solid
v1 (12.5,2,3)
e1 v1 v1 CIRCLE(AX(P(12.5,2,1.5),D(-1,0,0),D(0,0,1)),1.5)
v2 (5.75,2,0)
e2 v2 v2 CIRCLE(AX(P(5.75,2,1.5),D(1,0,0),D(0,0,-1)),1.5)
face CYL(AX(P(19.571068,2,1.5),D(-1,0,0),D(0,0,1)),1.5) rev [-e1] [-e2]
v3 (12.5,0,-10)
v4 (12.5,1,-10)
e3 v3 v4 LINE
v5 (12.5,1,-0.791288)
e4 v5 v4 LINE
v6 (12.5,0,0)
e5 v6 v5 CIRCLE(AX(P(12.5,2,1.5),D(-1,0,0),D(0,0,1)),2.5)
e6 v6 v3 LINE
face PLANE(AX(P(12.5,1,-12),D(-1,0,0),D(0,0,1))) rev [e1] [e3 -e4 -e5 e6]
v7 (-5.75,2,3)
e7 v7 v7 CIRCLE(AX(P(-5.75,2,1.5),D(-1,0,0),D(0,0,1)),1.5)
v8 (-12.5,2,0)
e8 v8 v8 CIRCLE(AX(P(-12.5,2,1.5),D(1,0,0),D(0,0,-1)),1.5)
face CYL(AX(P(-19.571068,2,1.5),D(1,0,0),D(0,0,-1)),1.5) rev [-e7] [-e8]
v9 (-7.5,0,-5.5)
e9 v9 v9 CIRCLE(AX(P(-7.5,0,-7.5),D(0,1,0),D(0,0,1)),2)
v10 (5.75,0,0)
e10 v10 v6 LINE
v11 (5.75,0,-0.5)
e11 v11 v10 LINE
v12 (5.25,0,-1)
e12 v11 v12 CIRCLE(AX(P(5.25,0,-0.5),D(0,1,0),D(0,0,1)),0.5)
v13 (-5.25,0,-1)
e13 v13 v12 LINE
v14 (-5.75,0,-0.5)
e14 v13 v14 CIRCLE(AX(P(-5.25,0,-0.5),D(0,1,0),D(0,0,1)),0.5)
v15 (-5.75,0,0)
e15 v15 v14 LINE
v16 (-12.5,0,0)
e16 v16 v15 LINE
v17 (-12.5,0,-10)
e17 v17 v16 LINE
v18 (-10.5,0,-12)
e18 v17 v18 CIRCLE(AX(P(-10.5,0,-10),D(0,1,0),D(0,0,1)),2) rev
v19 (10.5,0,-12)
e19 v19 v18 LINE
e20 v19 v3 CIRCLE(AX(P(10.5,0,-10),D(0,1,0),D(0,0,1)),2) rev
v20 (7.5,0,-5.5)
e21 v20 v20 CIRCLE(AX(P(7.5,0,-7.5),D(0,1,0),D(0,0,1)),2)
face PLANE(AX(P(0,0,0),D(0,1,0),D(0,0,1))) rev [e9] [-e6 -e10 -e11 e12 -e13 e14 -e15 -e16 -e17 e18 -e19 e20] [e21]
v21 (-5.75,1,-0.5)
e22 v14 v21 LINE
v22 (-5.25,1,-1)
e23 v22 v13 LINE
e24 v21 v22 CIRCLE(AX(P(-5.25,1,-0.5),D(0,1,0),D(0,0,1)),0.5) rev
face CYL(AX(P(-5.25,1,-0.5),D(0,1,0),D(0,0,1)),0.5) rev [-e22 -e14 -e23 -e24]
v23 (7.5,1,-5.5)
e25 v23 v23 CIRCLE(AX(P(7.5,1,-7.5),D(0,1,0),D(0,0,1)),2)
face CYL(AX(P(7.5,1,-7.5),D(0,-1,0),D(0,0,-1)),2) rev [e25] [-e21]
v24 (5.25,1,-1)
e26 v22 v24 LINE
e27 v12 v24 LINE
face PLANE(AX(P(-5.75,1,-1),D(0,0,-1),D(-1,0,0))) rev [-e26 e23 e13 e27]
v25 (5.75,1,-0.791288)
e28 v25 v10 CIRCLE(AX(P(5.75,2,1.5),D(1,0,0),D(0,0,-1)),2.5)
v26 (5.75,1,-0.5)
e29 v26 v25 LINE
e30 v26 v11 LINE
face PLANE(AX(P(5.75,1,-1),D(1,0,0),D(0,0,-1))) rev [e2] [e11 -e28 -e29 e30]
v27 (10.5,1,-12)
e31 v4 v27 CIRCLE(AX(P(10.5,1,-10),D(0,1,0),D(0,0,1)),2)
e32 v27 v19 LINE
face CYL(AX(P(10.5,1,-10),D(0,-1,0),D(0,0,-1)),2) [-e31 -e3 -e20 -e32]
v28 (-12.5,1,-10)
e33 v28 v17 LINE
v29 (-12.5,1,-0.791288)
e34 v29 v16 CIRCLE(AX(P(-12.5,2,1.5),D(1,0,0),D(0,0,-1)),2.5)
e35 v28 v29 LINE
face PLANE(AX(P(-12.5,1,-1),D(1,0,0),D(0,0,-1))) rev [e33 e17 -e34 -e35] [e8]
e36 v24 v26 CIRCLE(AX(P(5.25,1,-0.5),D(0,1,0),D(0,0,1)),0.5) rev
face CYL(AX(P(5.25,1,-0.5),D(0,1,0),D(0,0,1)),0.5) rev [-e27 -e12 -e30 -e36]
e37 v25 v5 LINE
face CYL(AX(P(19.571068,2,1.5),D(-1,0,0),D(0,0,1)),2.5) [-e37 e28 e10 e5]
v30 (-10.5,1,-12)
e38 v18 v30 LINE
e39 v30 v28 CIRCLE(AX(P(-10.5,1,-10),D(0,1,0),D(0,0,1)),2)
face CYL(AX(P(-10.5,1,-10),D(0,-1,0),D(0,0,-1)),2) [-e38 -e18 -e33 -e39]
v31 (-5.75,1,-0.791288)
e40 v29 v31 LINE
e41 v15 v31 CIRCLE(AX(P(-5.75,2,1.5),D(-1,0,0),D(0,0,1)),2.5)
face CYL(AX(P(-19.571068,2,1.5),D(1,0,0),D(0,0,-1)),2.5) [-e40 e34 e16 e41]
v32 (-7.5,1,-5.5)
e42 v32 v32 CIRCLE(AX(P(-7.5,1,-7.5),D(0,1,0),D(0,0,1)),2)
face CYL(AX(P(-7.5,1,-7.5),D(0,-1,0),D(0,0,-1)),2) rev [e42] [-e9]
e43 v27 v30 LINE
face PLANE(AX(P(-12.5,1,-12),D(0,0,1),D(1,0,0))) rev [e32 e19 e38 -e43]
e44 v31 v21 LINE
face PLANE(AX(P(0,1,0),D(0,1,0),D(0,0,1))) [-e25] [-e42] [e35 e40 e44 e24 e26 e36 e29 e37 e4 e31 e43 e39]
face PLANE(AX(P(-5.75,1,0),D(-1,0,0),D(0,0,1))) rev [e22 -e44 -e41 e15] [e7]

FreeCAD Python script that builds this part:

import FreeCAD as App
import Part
import Sketcher


def edges_at(feature, points):
    """Names of the edges that pass closest to the given points."""
    edges = feature.Shape.Edges
    near = lambda p: min(range(len(edges)), key=lambda i: edges[i].distToShape(Part.Vertex(*p))[0])
    return sorted({f"Edge{near(p) + 1}" for p in points})

doc = App.newDocument("Part")
params = doc.addObject("Spreadsheet::Sheet", "Params")
for row, (alias, value) in enumerate([
    ("sketch1_diameter", "4 mm"),
    ("sketch1_width", "25 mm"),
    ("sketch1_height", "1 mm"),
    ("sketch1_height2", "12 mm"),
    ("sketch1_width2", "11.5 mm"),
    ("pad1_length", "1 mm"),
    ("fillet_radius", "2 mm"),
    ("fillet2_radius", "0.5 mm"),
    ("sketch2_diameter", "5 mm"),
    ("sketch2_diameter2", "3 mm"),
    ("pad2_length", "6.75 mm"),
    ("sketch3_diameter", "5 mm"),
    ("sketch3_diameter2", "3 mm"),
    ("pad3_length", "6.75 mm"),
], start=1):
    params.set(f"A{row}", alias)
    params.set(f"B{row}", "=" + value)
    params.setAlias(f"B{row}", alias)

body = doc.addObject("PartDesign::Body", "Body")

# Sketch on XZ plane
sketch1 = body.newObject("Sketcher::SketchObject", "Sketch")
sketch1.AttachmentSupport = (doc.getObject("XZ_Plane"), [""])
sketch1.MapMode = "FlatFace"
sketch1.addGeometry(Part.LineSegment(App.Vector(-5.8, 0, 0), App.Vector(-5.8, -1, 0)), False)
sketch1.addGeometry(Part.LineSegment(App.Vector(-5.8, -1, 0), App.Vector(5.8, -1, 0)), False)
sketch1.addGeometry(Part.LineSegment(App.Vector(5.8, -1, 0), App.Vector(5.8, 0, 0)), False)
sketch1.addGeometry(Part.LineSegment(App.Vector(5.8, 0, 0), App.Vector(12.5, 0, 0)), False)
sketch1.addGeometry(Part.LineSegment(App.Vector(12.5, 0, 0), App.Vector(12.5, -12, 0)), False)
sketch1.addGeometry(Part.LineSegment(App.Vector(12.5, -12, 0), App.Vector(-12.5, -12, 0)), False)
sketch1.addGeometry(Part.LineSegment(App.Vector(-12.5, -12, 0), App.Vector(-12.5, 0, 0)), False)
sketch1.addGeometry(Part.LineSegment(App.Vector(-12.5, 0, 0), App.Vector(-5.8, 0, 0)), False)
sketch1.addGeometry(Part.Circle(App.Vector(-7.5, -7.5, 0), App.Vector(0, 0, 1), 2), False)
sketch1.addGeometry(Part.Circle(App.Vector(7.5, -7.5, 0), App.Vector(0, 0, 1), 2), False)
sketch1.addConstraint(Sketcher.Constraint("Coincident", 0, 2, 1, 1))
sketch1.addConstraint(Sketcher.Constraint("Coincident", 1, 2, 2, 1))
sketch1.addConstraint(Sketcher.Constraint("Coincident", 2, 2, 3, 1))
sketch1.addConstraint(Sketcher.Constraint("Coincident", 3, 2, 4, 1))
sketch1.addConstraint(Sketcher.Constraint("Coincident", 4, 2, 5, 1))
sketch1.addConstraint(Sketcher.Constraint("Coincident", 5, 2, 6, 1))
sketch1.addConstraint(Sketcher.Constraint("Coincident", 6, 2, 7, 1))
sketch1.addConstraint(Sketcher.Constraint("Coincident", 7, 2, 0, 1))
sketch1.addConstraint(Sketcher.Constraint("Vertical", 0))
sketch1.addConstraint(Sketcher.Constraint("Horizontal", 1))
sketch1.addConstraint(Sketcher.Constraint("Vertical", 2))
sketch1.addConstraint(Sketcher.Constraint("Horizontal", 3))
sketch1.addConstraint(Sketcher.Constraint("Vertical", 4))
sketch1.addConstraint(Sketcher.Constraint("Horizontal", 5))
sketch1.addConstraint(Sketcher.Constraint("Vertical", 6))
sketch1.addConstraint(Sketcher.Constraint("Horizontal", 7))
sketch1.addConstraint(Sketcher.Constraint("Equal", 8, 9))
sketch1.addConstraint(Sketcher.Constraint("Symmetric", 3, 2, 6, 2, -1, 1))
sketch1.addConstraint(Sketcher.Constraint("Symmetric", 8, 3, 9, 3, -2))
sketch1.addConstraint(Sketcher.Constraint("Symmetric", 2, 2, 7, 2, -2))
sketch1.addConstraint(Sketcher.Constraint("Diameter", 8, 4.0))
sketch1.addConstraint(Sketcher.Constraint("DistanceX", 5, 2, 5, 1, 25.0))
sketch1.addConstraint(Sketcher.Constraint("DistanceY", 0, 2, 0, 1, 1.0))
sketch1.addConstraint(Sketcher.Constraint("DistanceY", 4, 2, 4, 1, 12.0))
sketch1.addConstraint(Sketcher.Constraint("DistanceX", 1, 1, 1, 2, 11.5))
sketch1.addConstraint(Sketcher.Constraint("DistanceX", 8, 3, 9, 3, 15.0))
sketch1.addConstraint(Sketcher.Constraint("DistanceY", 8, 3, -1, 1, 7.5))
sketch1.setExpression("Constraints[20]", "Params.sketch1_diameter")
sketch1.setExpression("Constraints[21]", "Params.sketch1_width")
sketch1.setExpression("Constraints[22]", "Params.sketch1_height")
sketch1.setExpression("Constraints[23]", "Params.sketch1_height2")
sketch1.setExpression("Constraints[24]", "Params.sketch1_width2")
pad1 = body.newObject("PartDesign::Pad", "Pad")
pad1.Profile = sketch1
pad1.setExpression("Length", "Params.pad1_length")
pad1.Reversed = True
doc.recompute()

fillet = body.newObject("PartDesign::Fillet", "Fillet")
fillet.Base = (pad1, edges_at(pad1, [(-12.5, 0.5, -12), (12.5, 0.5, -12)]))
fillet.setExpression("Radius", "Params.fillet_radius")
doc.recompute()

fillet2 = body.newObject("PartDesign::Fillet", "Fillet001")
fillet2.Base = (fillet, edges_at(fillet, [(5.75, 0.5, -1), (-5.75, 0.5, -1)]))
fillet2.setExpression("Radius", "Params.fillet2_radius")

# Sketch on YZ plane
sketch2 = body.newObject("Sketcher::SketchObject", "Sketch001")
sketch2.AttachmentSupport = (doc.getObject("YZ_Plane"), [""])
sketch2.MapMode = "FlatFace"
sketch2.AttachmentOffset = App.Placement(App.Vector(0, 0, -5.75), App.Rotation())
sketch2.addGeometry(Part.Circle(App.Vector(2, 1.5, 0), App.Vector(0, 0, 1), 2.5), False)
sketch2.addGeometry(Part.Circle(App.Vector(2, 1.5, 0), App.Vector(0, 0, 1), 1.5), False)
sketch2.addConstraint(Sketcher.Constraint("Coincident", 1, 3, 0, 3))
sketch2.addConstraint(Sketcher.Constraint("Diameter", 0, 5.0))
sketch2.addConstraint(Sketcher.Constraint("Diameter", 1, 3.0))
sketch2.addConstraint(Sketcher.Constraint("DistanceX", -1, 1, 0, 3, 2.0))
sketch2.addConstraint(Sketcher.Constraint("DistanceY", -1, 1, 0, 3, 1.5))
sketch2.setExpression("Constraints[1]", "Params.sketch2_diameter")
sketch2.setExpression("Constraints[2]", "Params.sketch2_diameter2")
pad2 = body.newObject("PartDesign::Pad", "Pad001")
pad2.Profile = sketch2
pad2.setExpression("Length", "Params.pad2_length")
pad2.Reversed = True

# Sketch on YZ plane
sketch3 = body.newObject("Sketcher::SketchObject", "Sketch002")
sketch3.AttachmentSupport = (doc.getObject("YZ_Plane"), [""])
sketch3.MapMode = "FlatFace"
sketch3.AttachmentOffset = App.Placement(App.Vector(0, 0, 12.5), App.Rotation())
sketch3.addGeometry(Part.Circle(App.Vector(2, 1.5, 0), App.Vector(0, 0, 1), 2.5), False)
sketch3.addGeometry(Part.Circle(App.Vector(2, 1.5, 0), App.Vector(0, 0, 1), 1.5), False)
sketch3.addConstraint(Sketcher.Constraint("Coincident", 1, 3, 0, 3))
sketch3.addConstraint(Sketcher.Constraint("Diameter", 0, 5.0))
sketch3.addConstraint(Sketcher.Constraint("Diameter", 1, 3.0))
sketch3.addConstraint(Sketcher.Constraint("DistanceX", -1, 1, 0, 3, 2.0))
sketch3.addConstraint(Sketcher.Constraint("DistanceY", -1, 1, 0, 3, 1.5))
sketch3.setExpression("Constraints[1]", "Params.sketch3_diameter")
sketch3.setExpression("Constraints[2]", "Params.sketch3_diameter2")
pad3 = body.newObject("PartDesign::Pad", "Pad002")
pad3.Profile = sketch3
pad3.setExpression("Length", "Params.pad3_length")
pad3.Reversed = True

doc.recompute()
